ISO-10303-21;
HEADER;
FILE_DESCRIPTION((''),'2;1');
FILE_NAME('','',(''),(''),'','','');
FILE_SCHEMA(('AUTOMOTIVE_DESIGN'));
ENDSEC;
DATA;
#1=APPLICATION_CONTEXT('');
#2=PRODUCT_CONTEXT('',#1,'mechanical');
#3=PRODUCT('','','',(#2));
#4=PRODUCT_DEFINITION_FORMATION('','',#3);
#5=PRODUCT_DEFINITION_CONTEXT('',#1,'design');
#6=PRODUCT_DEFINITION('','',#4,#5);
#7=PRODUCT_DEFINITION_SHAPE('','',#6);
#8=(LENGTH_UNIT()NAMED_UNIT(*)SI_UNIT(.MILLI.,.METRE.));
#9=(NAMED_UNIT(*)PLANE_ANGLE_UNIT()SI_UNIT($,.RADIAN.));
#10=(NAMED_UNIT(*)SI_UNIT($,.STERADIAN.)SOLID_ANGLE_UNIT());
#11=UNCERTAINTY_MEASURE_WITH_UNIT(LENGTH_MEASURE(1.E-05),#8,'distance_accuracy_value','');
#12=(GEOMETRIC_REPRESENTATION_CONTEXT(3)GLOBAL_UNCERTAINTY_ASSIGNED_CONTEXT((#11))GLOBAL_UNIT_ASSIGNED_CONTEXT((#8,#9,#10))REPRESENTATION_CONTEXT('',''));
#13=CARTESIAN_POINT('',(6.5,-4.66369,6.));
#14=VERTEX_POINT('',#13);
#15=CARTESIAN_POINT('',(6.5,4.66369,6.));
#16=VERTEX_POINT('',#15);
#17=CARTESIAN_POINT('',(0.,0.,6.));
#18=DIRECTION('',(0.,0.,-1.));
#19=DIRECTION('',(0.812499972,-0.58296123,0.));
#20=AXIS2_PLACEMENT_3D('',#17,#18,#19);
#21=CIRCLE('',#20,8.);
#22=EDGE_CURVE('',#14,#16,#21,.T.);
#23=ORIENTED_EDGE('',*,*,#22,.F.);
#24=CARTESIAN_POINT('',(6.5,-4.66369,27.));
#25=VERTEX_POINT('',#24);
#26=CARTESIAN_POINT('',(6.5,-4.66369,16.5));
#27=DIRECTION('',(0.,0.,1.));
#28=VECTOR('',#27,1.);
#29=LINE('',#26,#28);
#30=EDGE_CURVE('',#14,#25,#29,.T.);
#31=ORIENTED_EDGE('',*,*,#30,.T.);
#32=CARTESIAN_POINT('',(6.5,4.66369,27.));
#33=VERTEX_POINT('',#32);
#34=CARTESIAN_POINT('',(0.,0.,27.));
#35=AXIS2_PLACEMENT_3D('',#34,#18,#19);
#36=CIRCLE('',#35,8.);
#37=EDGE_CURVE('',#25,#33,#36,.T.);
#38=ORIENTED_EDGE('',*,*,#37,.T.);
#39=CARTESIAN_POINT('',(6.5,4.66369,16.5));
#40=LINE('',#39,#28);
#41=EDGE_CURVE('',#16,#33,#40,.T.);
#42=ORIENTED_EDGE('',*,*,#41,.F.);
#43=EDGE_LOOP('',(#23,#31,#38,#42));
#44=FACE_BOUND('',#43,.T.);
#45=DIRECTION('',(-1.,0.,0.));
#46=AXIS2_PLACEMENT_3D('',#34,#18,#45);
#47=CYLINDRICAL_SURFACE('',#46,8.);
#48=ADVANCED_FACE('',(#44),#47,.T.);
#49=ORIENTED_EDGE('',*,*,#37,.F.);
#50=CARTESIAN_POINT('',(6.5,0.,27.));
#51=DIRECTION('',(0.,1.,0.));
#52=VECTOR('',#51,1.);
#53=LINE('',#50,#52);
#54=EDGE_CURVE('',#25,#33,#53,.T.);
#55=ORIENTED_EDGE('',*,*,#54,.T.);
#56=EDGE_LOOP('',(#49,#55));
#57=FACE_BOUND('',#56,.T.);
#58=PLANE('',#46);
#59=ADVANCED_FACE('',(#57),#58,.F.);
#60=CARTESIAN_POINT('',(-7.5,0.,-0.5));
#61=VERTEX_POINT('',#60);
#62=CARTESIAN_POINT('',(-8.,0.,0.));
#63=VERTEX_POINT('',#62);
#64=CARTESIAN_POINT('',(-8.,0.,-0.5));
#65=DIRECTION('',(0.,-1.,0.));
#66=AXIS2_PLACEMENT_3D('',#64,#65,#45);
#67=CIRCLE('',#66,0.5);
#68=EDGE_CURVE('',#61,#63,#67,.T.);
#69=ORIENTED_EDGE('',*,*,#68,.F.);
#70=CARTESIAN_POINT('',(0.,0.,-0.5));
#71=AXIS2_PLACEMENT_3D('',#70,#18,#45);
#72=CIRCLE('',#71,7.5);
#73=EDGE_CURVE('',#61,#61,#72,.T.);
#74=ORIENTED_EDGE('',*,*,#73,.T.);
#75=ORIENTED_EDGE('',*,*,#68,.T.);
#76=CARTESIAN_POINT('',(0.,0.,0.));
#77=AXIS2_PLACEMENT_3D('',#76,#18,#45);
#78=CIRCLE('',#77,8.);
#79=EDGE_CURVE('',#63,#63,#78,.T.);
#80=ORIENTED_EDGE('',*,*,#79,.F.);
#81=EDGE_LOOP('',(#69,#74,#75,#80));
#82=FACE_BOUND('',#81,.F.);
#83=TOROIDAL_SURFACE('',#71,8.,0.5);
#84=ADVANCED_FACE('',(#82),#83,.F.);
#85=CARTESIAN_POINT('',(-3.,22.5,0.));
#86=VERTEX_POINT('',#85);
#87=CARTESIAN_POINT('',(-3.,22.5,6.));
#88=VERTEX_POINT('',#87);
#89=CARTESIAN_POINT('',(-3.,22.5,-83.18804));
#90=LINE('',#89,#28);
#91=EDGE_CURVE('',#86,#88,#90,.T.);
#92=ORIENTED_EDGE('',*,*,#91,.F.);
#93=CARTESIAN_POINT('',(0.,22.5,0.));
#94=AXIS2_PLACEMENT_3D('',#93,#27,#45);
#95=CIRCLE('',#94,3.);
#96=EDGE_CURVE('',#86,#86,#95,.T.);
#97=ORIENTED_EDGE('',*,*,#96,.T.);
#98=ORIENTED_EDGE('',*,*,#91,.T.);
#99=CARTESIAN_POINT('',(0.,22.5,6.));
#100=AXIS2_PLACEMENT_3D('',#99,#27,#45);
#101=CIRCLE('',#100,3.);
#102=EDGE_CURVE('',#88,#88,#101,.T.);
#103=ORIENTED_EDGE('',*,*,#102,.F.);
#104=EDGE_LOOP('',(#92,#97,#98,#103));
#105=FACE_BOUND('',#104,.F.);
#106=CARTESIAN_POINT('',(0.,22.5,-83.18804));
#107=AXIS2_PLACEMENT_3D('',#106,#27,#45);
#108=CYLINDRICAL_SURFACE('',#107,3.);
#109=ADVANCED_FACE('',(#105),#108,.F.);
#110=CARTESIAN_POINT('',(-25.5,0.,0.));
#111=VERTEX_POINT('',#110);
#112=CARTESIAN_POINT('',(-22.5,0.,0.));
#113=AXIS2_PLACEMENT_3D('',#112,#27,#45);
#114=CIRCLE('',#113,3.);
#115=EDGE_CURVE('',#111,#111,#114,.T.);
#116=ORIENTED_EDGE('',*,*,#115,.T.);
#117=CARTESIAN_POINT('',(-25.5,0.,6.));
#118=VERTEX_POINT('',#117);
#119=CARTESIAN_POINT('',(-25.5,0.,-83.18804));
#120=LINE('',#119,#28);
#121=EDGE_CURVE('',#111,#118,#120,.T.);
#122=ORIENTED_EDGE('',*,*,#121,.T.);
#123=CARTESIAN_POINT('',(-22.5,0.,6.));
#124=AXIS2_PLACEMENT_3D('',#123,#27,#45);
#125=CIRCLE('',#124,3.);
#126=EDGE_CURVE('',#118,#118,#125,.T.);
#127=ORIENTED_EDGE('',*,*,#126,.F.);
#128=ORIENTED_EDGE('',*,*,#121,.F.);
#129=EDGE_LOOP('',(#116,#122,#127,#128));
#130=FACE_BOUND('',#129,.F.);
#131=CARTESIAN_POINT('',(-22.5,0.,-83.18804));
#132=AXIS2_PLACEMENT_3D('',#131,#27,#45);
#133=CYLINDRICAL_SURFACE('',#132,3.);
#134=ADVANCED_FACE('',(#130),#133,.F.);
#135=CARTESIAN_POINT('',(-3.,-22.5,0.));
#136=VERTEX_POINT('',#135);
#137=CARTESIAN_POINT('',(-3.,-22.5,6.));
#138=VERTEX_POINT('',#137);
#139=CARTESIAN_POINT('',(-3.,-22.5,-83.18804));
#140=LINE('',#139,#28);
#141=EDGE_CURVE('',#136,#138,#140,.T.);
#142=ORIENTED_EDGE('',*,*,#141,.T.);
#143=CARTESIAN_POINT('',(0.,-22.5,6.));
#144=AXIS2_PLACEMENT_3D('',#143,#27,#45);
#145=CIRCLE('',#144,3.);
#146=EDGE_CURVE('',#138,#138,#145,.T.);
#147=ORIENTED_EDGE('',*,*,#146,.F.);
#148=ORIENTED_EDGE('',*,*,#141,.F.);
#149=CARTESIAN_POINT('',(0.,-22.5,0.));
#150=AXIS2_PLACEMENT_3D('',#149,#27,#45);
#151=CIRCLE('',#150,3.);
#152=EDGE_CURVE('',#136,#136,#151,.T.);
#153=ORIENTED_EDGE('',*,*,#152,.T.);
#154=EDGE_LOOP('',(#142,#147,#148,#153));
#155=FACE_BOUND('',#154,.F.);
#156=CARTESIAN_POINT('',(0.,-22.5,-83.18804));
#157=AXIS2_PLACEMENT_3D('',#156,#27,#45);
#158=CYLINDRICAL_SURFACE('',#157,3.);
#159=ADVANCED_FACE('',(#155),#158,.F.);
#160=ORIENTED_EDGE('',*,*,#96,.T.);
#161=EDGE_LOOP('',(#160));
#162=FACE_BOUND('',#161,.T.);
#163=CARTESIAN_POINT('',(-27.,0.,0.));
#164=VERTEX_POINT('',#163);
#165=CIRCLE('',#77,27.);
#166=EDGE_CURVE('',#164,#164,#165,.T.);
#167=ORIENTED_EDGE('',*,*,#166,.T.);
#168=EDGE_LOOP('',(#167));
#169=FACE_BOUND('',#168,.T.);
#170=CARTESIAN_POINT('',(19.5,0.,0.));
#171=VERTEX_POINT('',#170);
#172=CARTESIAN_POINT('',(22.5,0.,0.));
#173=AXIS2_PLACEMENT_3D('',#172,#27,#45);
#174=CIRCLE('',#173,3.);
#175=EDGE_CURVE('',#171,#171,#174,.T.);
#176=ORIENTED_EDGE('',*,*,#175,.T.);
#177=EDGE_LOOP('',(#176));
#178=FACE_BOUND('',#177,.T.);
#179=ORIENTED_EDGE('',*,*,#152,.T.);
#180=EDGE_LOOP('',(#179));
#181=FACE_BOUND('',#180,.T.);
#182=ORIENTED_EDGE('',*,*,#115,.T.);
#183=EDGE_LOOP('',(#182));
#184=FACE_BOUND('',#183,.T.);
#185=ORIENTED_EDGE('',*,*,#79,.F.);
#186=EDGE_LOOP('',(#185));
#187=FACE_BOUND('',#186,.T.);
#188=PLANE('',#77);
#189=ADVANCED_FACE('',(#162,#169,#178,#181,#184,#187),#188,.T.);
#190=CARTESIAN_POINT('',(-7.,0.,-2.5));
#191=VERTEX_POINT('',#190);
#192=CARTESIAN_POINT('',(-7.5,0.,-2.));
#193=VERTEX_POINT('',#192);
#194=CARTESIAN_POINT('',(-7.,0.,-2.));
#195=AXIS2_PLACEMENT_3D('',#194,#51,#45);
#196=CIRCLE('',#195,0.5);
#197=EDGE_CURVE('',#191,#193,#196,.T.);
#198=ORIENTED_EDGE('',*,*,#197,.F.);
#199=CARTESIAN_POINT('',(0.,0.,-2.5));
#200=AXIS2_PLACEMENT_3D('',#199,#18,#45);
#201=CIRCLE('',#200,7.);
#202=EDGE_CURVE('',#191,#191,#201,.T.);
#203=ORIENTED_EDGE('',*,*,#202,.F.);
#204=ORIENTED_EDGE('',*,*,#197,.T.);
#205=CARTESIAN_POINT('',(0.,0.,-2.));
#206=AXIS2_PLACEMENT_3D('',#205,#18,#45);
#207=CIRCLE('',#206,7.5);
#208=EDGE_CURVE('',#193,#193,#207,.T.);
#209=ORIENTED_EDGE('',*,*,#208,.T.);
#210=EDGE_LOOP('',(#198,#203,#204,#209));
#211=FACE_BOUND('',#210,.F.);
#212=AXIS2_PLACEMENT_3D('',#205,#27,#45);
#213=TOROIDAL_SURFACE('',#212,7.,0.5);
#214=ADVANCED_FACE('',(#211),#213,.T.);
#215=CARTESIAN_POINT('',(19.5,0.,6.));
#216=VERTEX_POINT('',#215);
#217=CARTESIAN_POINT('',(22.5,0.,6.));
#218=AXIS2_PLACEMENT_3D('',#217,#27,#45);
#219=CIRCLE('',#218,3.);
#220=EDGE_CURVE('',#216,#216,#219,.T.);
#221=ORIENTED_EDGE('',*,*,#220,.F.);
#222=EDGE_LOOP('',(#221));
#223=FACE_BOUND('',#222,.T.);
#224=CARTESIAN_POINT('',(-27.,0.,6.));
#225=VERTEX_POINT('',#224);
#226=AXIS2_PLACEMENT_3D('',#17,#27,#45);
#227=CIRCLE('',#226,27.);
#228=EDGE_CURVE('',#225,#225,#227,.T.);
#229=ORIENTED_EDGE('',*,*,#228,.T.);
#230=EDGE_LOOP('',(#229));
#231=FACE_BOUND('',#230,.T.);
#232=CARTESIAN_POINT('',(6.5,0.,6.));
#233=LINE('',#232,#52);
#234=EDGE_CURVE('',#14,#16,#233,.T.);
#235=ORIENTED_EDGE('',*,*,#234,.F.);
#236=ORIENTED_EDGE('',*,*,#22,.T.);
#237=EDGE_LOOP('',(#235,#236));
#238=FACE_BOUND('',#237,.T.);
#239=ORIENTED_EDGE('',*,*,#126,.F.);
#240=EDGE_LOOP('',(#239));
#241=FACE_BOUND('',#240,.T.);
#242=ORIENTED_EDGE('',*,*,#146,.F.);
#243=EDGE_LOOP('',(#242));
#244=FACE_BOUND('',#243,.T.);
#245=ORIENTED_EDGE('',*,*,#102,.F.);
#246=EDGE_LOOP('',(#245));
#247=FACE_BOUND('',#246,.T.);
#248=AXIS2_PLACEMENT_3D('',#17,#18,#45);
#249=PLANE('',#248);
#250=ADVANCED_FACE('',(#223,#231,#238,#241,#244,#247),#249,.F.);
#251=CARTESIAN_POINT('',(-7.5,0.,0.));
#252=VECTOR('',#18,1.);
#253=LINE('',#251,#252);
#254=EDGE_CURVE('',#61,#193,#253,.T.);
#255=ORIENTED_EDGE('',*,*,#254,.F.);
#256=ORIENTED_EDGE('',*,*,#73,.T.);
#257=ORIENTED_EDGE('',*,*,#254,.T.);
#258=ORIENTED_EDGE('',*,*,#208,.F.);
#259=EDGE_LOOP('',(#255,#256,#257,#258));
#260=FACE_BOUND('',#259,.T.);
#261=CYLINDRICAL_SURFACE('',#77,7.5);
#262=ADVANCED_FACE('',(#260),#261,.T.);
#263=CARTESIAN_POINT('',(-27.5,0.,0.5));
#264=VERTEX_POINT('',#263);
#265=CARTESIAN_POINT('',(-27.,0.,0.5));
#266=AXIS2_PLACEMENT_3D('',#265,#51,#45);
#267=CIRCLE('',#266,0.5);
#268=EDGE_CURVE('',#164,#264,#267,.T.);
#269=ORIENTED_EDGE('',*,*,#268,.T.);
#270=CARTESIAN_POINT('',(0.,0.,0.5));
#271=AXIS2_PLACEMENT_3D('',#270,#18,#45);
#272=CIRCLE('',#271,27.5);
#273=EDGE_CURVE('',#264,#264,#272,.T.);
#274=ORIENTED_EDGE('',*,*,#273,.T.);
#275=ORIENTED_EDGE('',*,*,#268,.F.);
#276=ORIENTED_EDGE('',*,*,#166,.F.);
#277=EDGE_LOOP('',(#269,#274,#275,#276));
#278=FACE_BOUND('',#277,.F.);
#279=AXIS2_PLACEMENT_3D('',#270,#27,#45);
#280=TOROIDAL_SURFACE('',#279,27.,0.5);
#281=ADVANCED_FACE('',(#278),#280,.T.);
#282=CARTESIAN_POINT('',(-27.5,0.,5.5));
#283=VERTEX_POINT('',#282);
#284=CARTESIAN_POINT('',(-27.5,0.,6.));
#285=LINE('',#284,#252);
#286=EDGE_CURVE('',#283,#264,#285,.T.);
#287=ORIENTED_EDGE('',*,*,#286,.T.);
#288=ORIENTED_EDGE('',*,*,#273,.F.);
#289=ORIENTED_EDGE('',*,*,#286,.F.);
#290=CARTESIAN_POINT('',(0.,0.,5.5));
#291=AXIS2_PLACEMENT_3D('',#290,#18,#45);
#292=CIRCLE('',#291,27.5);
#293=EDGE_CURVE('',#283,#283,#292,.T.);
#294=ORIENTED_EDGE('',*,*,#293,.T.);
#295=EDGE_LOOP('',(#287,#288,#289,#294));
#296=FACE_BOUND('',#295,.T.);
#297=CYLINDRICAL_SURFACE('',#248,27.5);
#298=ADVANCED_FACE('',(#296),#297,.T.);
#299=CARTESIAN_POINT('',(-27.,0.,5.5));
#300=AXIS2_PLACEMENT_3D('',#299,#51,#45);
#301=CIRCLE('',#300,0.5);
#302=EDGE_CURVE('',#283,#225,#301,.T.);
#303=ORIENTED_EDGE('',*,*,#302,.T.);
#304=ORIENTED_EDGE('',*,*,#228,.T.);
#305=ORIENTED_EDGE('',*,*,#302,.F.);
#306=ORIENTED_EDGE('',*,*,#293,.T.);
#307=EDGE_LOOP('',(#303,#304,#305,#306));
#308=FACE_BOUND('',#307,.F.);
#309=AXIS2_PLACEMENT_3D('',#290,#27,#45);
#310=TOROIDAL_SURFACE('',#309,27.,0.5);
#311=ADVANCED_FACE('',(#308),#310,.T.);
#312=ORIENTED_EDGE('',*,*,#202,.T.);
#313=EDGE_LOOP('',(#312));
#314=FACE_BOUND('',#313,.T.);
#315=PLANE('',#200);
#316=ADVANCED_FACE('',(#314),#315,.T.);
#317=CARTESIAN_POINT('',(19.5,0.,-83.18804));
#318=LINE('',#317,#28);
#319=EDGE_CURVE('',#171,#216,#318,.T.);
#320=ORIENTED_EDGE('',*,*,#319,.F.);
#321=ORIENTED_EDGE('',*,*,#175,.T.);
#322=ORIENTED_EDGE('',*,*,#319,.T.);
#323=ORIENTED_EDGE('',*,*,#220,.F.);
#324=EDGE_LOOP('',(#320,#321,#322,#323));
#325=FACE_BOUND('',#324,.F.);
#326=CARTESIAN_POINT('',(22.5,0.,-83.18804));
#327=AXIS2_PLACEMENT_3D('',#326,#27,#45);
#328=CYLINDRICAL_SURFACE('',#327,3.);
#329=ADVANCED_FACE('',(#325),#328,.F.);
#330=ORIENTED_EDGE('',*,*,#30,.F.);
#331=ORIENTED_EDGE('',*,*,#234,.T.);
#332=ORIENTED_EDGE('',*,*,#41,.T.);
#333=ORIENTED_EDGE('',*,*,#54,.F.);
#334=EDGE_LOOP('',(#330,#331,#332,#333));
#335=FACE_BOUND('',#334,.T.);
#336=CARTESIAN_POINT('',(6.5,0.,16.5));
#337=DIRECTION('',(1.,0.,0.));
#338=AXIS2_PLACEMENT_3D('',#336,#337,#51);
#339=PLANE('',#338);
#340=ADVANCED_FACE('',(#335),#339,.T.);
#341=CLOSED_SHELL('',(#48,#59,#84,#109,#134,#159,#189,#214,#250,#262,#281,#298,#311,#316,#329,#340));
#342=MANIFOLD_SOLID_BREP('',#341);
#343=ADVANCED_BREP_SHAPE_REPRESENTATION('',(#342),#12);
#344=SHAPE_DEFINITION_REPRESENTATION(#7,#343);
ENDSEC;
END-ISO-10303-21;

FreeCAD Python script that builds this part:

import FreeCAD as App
import Part
import Sketcher

V = App.Vector


def edges_at(feature, points):
    """Names of the edges that pass closest to the given points."""
    edges = feature.Shape.Edges
    near = lambda p: min(range(len(edges)), key=lambda i: edges[i].distToShape(Part.Vertex(*p))[0])
    return sorted({f"Edge{near(p) + 1}" for p in points})

doc = App.newDocument("Part")
params = doc.addObject("Spreadsheet::Sheet", "Params")
for row, (alias, value) in enumerate([
    ("sketch1_width", "8 mm"),
    ("sketch1_width2", "20 mm"),
    ("sketch1_height", "21 mm"),
    ("sketch1_height2", "6 mm"),
    ("sketch1_width3", "7.5 mm"),
    ("revolution_angle", "360 deg"),
    ("sketch2_diameter", "6 mm"),
    ("hole_diameter", "6 mm"),
    ("fillet_radius", "0.5 mm"),
    ("sketch3_height", "21 mm"),
    ("pocket1_length", "25 mm"),
], start=1):
    params.set(f"A{row}", alias)
    params.set(f"B{row}", "=" + value)
    params.setAlias(f"B{row}", alias)

body = doc.addObject("PartDesign::Body", "Body")

# Sketch on XZ plane
sketch1 = body.newObject("Sketcher::SketchObject", "Sketch")
sketch1.AttachmentSupport = (doc.getObject("XZ_Plane"), [""])
sketch1.MapMode = "FlatFace"
sketch1.addGeometry([
    Part.LineSegment(V(-7.5, -2.5, 0), V(0, -2.5, 0)),  # 0
    Part.LineSegment(V(0, -2.5, 0), V(0, 27, 0)),  # 1
    Part.LineSegment(V(0, 27, 0), V(-8, 27, 0)),  # 2
    Part.LineSegment(V(-8, 27, 0), V(-8, 6, 0)),  # 3
    Part.LineSegment(V(-8, 6, 0), V(-27.5, 6, 0)),  # 4
    Part.LineSegment(V(-27.5, 6, 0), V(-27.5, 0, 0)),  # 5
    Part.LineSegment(V(-27.5, 0, 0), V(-7.5, 0, 0)),  # 6
    Part.LineSegment(V(-7.5, 0, 0), V(-7.5, -2.5, 0)),  # 7
], False)
sketch1.addConstraint([
    Sketcher.Constraint("Coincident", 0, 2, 1, 1),
    Sketcher.Constraint("Coincident", 1, 2, 2, 1),
    Sketcher.Constraint("Coincident", 2, 2, 3, 1),
    Sketcher.Constraint("Coincident", 3, 2, 4, 1),
    Sketcher.Constraint("Coincident", 4, 2, 5, 1),
    Sketcher.Constraint("Coincident", 5, 2, 6, 1),
    Sketcher.Constraint("Coincident", 6, 2, 7, 1),
    Sketcher.Constraint("Coincident", 7, 2, 0, 1),
    Sketcher.Constraint("Horizontal", 0),
    Sketcher.Constraint("Vertical", 1),
    Sketcher.Constraint("Horizontal", 2),
    Sketcher.Constraint("Vertical", 3),
    Sketcher.Constraint("Horizontal", 4),
    Sketcher.Constraint("Vertical", 5),
    Sketcher.Constraint("Horizontal", 6),
    Sketcher.Constraint("Vertical", 7),
    Sketcher.Constraint("PointOnObject", 0, 2, -2),
    Sketcher.Constraint("PointOnObject", 5, 2, -1),
    Sketcher.Constraint("DistanceX", 2, 2, 2, 1, 8.0),
    Sketcher.Constraint("DistanceX", 6, 1, 6, 2, 20.0),
    Sketcher.Constraint("DistanceY", 3, 2, 3, 1, 21.0),
    Sketcher.Constraint("DistanceY", 5, 2, 5, 1, 6.0),
    Sketcher.Constraint("DistanceX", 0, 1, 0, 2, 7.5),
    Sketcher.Constraint("DistanceY", 1, 1, 1, 2, 29.5),
])
sketch1.setExpression("Constraints[18]", "Params.sketch1_width")
sketch1.setExpression("Constraints[19]", "Params.sketch1_width2")
sketch1.setExpression("Constraints[20]", "Params.sketch1_height")
sketch1.setExpression("Constraints[21]", "Params.sketch1_height2")
sketch1.setExpression("Constraints[22]", "Params.sketch1_width3")
revolution = body.newObject("PartDesign::Revolution", "Revolution")
revolution.Profile = sketch1
revolution.ReferenceAxis = (sketch1, ["V_Axis"])
revolution.setExpression("Angle", "Params.revolution_angle")

# Sketch on XY plane
sketch2 = body.newObject("Sketcher::SketchObject", "Sketch001")
sketch2.AttachmentSupport = (doc.getObject("XY_Plane"), [""])
sketch2.MapMode = "FlatFace"
sketch2.addGeometry([
    Part.Circle(V(0, 22.5, 0), V(0, 0, 1), 3),
    Part.Circle(V(22.5, 0, 0), V(0, 0, 1), 3),
    Part.Circle(V(0, -22.5, 0), V(0, 0, 1), 3),
    Part.Circle(V(-22.5, 0, 0), V(0, 0, 1), 3),
], False)
sketch2.addConstraint([
    Sketcher.Constraint("Equal", 0, 1),
    Sketcher.Constraint("Equal", 1, 2),
    Sketcher.Constraint("Equal", 2, 3),
    Sketcher.Constraint("Symmetric", 0, 3, 2, 3, -1, 1),
    Sketcher.Constraint("Symmetric", 1, 3, 3, 3, -1, 1),
    Sketcher.Constraint("PointOnObject", 0, 3, -2),
    Sketcher.Constraint("PointOnObject", 1, 3, -1),
    Sketcher.Constraint("Diameter", 0, 6.0),
    Sketcher.Constraint("DistanceY", 2, 3, 0, 3, 45.0),
    Sketcher.Constraint("DistanceX", 3, 3, 1, 3, 45.0),
])
sketch2.setExpression("Constraints[7]", "Params.sketch2_diameter")
doc.recompute()
hole = body.newObject("PartDesign::Hole", "Hole")
hole.Profile = sketch2
hole.ThreadType = "None"
hole.setExpression("Diameter", "Params.hole_diameter")
hole.DepthType = "ThroughAll"
hole.Reversed = True
doc.recompute()

fillet = body.newObject("PartDesign::Fillet", "Fillet")
fillet.Base = (hole, edges_at(hole, [
    (27.5, 0, 6),
    (27.5, 0, 0),
    (7.5, 0, -2.5),
    (7.5, 0, 0),
]))
fillet.setExpression("Radius", "Params.fillet_radius")

# Sketch on YZ plane
sketch3 = body.newObject("Sketcher::SketchObject", "Sketch002")
sketch3.AttachmentSupport = (doc.getObject("YZ_Plane"), [""])
sketch3.MapMode = "FlatFace"
sketch3.AttachmentOffset = App.Placement(V(0, 0, 6.5), App.Rotation())
sketch3.addGeometry([
    Part.LineSegment(V(-5, 27, 0), V(-5, 6, 0)),
    Part.LineSegment(V(-5, 6, 0), V(5, 6, 0)),
    Part.LineSegment(V(5, 6, 0), V(5, 27, 0)),
    Part.LineSegment(V(5, 27, 0), V(-5, 27, 0)),
], False)
sketch3.addConstraint([
    Sketcher.Constraint("Coincident", 0, 2, 1, 1),
    Sketcher.Constraint("Coincident", 1, 2, 2, 1),
    Sketcher.Constraint("Coincident", 2, 2, 3, 1),
    Sketcher.Constraint("Coincident", 3, 2, 0, 1),
    Sketcher.Constraint("Vertical", 0),
    Sketcher.Constraint("Horizontal", 1),
    Sketcher.Constraint("Vertical", 2),
    Sketcher.Constraint("Horizontal", 3),
    Sketcher.Constraint("DistanceY", 0, 2, 0, 1, 21.0),
    Sketcher.Constraint("DistanceY", -1, 1, 0, 2, 6.0),
    Sketcher.Constraint("DistanceX", 1, 1, 1, 2, 9.32738),
    Sketcher.Constraint("DistanceX", 0, 2, -1, 1, 4.66369),
])
sketch3.setExpression("Constraints[8]", "Params.sketch3_height")
pocket1 = body.newObject("PartDesign::Pocket", "Pocket")
pocket1.Profile = sketch3
pocket1.setExpression("Length", "Params.pocket1_length")
pocket1.Reversed = True

doc.recompute()
